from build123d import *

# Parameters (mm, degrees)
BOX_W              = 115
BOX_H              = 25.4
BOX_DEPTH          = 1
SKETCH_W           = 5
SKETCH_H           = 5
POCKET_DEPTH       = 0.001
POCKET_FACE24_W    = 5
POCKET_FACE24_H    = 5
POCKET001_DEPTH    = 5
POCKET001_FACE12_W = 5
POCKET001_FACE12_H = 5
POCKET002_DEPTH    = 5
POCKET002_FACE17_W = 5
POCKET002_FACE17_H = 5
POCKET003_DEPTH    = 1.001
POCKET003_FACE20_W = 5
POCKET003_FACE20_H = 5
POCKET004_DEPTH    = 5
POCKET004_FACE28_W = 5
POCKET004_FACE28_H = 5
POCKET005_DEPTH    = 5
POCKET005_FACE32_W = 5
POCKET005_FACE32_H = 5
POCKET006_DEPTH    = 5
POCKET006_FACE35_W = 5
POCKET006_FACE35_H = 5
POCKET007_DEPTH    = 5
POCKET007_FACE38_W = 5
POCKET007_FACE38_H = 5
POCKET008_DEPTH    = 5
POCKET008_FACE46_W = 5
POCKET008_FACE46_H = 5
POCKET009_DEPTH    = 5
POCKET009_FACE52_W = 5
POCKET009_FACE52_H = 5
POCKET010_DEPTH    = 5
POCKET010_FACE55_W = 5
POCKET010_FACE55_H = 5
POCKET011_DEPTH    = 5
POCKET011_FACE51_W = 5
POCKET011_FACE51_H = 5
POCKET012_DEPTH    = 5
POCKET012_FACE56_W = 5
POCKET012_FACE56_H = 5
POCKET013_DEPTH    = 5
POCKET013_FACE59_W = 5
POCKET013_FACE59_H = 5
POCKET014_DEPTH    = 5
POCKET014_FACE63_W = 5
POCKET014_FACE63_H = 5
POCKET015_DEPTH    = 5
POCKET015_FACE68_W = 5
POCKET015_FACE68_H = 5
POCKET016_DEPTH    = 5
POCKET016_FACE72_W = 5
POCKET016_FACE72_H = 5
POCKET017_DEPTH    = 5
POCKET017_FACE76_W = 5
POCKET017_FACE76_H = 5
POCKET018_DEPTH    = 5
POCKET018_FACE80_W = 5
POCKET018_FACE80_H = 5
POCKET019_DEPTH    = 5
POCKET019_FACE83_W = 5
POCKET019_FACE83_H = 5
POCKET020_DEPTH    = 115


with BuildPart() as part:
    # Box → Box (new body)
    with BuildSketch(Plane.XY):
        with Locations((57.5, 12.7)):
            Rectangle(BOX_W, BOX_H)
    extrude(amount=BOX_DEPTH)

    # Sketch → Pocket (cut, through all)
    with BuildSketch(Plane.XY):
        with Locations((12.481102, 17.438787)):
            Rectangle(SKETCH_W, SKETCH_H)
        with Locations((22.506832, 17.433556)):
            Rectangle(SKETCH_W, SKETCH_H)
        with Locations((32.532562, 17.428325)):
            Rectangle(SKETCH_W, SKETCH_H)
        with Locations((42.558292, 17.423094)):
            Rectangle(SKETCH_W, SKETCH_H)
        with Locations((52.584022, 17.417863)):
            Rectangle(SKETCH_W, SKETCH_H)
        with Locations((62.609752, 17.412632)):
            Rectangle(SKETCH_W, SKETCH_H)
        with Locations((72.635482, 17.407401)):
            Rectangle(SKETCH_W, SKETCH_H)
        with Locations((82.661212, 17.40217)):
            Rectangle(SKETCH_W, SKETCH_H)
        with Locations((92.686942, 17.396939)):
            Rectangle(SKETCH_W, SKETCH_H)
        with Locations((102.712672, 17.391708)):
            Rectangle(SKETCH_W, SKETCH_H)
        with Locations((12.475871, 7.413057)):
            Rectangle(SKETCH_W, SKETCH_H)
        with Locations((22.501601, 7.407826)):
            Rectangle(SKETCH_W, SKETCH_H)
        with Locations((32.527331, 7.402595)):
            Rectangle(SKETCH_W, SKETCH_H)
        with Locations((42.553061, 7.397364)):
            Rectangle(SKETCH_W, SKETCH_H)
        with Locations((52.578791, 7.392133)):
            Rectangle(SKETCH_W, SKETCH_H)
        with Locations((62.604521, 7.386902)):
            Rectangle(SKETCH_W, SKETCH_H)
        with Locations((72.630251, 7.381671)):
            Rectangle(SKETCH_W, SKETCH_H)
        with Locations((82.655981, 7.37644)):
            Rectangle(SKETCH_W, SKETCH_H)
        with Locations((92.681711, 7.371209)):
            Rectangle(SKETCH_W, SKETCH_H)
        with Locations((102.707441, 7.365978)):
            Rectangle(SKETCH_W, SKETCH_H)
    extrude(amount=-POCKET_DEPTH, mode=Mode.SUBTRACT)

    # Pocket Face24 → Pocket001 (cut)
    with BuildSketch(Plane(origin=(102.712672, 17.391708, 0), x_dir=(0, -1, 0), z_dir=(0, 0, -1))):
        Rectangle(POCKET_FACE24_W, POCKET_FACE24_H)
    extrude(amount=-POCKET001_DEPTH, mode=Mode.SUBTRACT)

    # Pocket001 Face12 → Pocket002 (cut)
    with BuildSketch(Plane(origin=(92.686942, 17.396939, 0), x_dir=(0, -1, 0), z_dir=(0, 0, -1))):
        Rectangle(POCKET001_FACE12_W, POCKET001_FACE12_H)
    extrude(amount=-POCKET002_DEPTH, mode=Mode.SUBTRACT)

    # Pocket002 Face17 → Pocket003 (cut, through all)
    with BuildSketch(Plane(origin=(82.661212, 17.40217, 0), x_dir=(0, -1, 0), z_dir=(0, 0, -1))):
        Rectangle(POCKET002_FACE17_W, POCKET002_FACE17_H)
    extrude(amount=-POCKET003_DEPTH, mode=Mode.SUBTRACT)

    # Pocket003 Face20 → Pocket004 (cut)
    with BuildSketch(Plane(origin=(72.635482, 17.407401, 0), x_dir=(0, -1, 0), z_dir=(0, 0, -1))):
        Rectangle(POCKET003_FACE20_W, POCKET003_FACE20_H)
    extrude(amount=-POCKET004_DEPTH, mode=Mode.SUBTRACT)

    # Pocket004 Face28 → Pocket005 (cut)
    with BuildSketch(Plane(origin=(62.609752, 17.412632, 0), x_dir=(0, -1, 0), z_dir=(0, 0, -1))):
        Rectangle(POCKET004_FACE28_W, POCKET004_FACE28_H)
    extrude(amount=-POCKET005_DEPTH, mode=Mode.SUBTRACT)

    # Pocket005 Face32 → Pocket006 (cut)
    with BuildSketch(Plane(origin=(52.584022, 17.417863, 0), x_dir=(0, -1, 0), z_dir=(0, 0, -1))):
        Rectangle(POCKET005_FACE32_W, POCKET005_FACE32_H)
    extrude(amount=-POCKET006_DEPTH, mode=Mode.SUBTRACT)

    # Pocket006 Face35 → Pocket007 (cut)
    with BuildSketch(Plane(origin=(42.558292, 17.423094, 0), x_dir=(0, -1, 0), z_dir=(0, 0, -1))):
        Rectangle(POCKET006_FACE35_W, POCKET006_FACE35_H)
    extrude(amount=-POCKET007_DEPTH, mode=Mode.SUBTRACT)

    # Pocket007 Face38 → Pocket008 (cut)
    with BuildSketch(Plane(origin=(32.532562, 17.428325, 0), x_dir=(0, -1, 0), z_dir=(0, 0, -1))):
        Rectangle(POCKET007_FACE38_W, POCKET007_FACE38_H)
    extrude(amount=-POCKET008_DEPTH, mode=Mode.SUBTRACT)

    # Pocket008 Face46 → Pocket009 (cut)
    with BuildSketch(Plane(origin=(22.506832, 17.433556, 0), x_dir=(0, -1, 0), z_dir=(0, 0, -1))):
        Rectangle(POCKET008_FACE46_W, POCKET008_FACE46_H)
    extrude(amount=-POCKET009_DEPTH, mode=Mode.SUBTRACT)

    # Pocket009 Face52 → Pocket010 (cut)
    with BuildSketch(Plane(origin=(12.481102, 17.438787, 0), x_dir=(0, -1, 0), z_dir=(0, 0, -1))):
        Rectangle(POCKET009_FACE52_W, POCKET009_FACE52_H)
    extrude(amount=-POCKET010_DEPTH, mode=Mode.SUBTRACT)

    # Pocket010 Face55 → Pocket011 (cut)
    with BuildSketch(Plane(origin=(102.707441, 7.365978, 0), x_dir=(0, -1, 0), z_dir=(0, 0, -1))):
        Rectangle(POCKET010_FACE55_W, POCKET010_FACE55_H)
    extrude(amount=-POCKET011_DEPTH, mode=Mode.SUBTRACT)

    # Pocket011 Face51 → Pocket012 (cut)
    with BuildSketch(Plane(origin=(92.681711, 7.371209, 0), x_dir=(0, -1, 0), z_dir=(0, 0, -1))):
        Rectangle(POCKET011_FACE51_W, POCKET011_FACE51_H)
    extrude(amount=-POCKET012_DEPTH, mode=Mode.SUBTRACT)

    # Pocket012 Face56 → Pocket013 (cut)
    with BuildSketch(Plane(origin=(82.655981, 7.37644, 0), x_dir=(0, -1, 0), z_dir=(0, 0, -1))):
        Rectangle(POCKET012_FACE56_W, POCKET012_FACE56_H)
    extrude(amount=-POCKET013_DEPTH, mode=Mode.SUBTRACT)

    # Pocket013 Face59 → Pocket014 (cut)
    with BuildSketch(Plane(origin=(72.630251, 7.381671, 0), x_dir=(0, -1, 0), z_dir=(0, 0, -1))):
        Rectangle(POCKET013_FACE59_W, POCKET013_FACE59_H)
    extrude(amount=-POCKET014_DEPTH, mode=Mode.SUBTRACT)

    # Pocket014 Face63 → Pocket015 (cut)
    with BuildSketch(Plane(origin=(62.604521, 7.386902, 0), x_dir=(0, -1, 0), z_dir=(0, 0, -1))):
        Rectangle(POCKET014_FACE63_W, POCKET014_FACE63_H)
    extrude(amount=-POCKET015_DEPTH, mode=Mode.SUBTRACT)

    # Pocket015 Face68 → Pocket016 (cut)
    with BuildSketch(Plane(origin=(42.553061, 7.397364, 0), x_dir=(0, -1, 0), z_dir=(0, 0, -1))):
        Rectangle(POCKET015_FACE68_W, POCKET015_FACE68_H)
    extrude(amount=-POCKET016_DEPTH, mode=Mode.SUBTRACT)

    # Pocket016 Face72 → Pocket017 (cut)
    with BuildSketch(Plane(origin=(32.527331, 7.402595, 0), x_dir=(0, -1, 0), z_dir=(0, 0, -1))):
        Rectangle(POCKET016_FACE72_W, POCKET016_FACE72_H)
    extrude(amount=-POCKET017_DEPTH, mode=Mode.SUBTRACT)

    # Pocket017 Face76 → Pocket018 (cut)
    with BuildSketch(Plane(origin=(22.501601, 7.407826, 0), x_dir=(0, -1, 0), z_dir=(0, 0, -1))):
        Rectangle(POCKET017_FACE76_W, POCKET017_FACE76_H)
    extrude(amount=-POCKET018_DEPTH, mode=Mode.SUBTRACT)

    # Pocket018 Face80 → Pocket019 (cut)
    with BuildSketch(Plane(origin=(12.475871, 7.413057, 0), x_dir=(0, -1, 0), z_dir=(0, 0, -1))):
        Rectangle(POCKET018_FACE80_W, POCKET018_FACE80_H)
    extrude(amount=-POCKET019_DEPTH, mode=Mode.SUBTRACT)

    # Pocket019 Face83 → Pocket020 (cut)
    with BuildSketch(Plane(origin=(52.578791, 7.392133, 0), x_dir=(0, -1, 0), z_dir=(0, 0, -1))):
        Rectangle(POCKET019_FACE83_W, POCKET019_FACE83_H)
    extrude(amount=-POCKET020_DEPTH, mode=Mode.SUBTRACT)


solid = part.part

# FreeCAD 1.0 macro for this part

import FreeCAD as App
import Part
import Sketcher

V = App.Vector


def add_polygon(sketch, points):
    """Adds a closed chain of lines whose ends are joined by coincident constraints."""
    first, n = sketch.GeometryCount, len(points)
    for a, b in zip(points, points[1:] + points[:1]):
        sketch.addGeometry(Part.LineSegment(App.Vector(*a, 0), App.Vector(*b, 0)), False)
    for i in range(n):
        sketch.addConstraint(Sketcher.Constraint("Coincident", first + i, 2, first + (i + 1) % n, 1))

doc = App.newDocument("Part")
body = doc.addObject("PartDesign::Body", "Body")

# Sketch on XY plane
sketch1 = body.newObject("Sketcher::SketchObject", "Sketch")
sketch1.AttachmentSupport = (doc.getObject("XY_Plane"), [""])
sketch1.MapMode = "FlatFace"
add_polygon(sketch1, [(0, 25), (0, 0), (115, 0), (115, 25)])  # lines 0-3
sketch1.addConstraint(Sketcher.Constraint("Vertical", 0))
sketch1.addConstraint(Sketcher.Constraint("Horizontal", 1))
sketch1.addConstraint(Sketcher.Constraint("Vertical", 2))
sketch1.addConstraint(Sketcher.Constraint("Horizontal", 3))
sketch1.addConstraint(Sketcher.Constraint("Coincident", 0, 2, -1, 1))
sketch1.addConstraint(Sketcher.Constraint("DistanceX", 1, 1, 1, 2, 115.0))
sketch1.addConstraint(Sketcher.Constraint("DistanceY", 0, 2, 0, 1, 25.4))
pad1 = body.newObject("PartDesign::Pad", "Pad")
pad1.Profile = sketch1
pad1.Length = 1

# Sketch on XY plane
sketch2 = body.newObject("Sketcher::SketchObject", "Sketch001")
sketch2.AttachmentSupport = (doc.getObject("XY_Plane"), [""])
sketch2.MapMode = "FlatFace"
add_polygon(sketch2, [(10, 19.9), (10, 14.9), (15, 14.9), (15, 19.9)])  # lines 0-3
add_polygon(sketch2, [(20, 19.9), (20, 14.9), (25, 14.9), (25, 19.9)])  # lines 4-7
add_polygon(sketch2, [(30, 19.9), (30, 14.9), (35, 14.9), (35, 19.9)])  # lines 8-11
add_polygon(sketch2, [(40.1, 19.9), (40.1, 14.9), (45.1, 14.9), (45.1, 19.9)])  # lines 12-15
add_polygon(sketch2, [(50.1, 19.9), (50.1, 14.9), (55.1, 14.9), (55.1, 19.9)])  # lines 16-19
add_polygon(sketch2, [(60.1, 19.9), (60.1, 14.9), (65.1, 14.9), (65.1, 19.9)])  # lines 20-23
add_polygon(sketch2, [(70.1, 19.9), (70.1, 14.9), (75.1, 14.9), (75.1, 19.9)])  # lines 24-27
add_polygon(sketch2, [(80.2, 19.9), (80.2, 14.9), (85.2, 14.9), (85.2, 19.9)])  # lines 28-31
add_polygon(sketch2, [(90.2, 19.9), (90.2, 14.9), (95.2, 14.9), (95.2, 19.9)])  # lines 32-35
add_polygon(sketch2, [(100.2, 19.9), (100.2, 14.9), (105.2, 14.9), (105.2, 19.9)])  # lines 36-39
add_polygon(sketch2, [(10, 9.9), (10, 4.9), (15, 4.9), (15, 9.9)])  # lines 40-43
add_polygon(sketch2, [(20, 9.9), (20, 4.9), (25, 4.9), (25, 9.9)])  # lines 44-47
add_polygon(sketch2, [(30, 9.9), (30, 4.9), (35, 4.9), (35, 9.9)])  # lines 48-51
add_polygon(sketch2, [(40.1, 9.9), (40.1, 4.9), (45.1, 4.9), (45.1, 9.9)])  # lines 52-55
add_polygon(sketch2, [(50.1, 9.9), (50.1, 4.9), (55.1, 4.9), (55.1, 9.9)])  # lines 56-59
add_polygon(sketch2, [(60.1, 9.9), (60.1, 4.9), (65.1, 4.9), (65.1, 9.9)])  # lines 60-63
add_polygon(sketch2, [(70.1, 9.9), (70.1, 4.9), (75.1, 4.9), (75.1, 9.9)])  # lines 64-67
add_polygon(sketch2, [(80.2, 9.9), (80.2, 4.9), (85.2, 4.9), (85.2, 9.9)])  # lines 68-71
add_polygon(sketch2, [(90.2, 9.9), (90.2, 4.9), (95.2, 4.9), (95.2, 9.9)])  # lines 72-75
add_polygon(sketch2, [(100.2, 9.9), (100.2, 4.9), (105.2, 4.9), (105.2, 9.9)])  # lines 76-79
sketch2.addConstraint(Sketcher.Constraint("Vertical", 0))
sketch2.addConstraint(Sketcher.Constraint("Horizontal", 1))
sketch2.addConstraint(Sketcher.Constraint("Vertical", 2))
sketch2.addConstraint(Sketcher.Constraint("Horizontal", 3))
sketch2.addConstraint(Sketcher.Constraint("Vertical", 4))
sketch2.addConstraint(Sketcher.Constraint("Horizontal", 5))
sketch2.addConstraint(Sketcher.Constraint("Vertical", 6))
sketch2.addConstraint(Sketcher.Constraint("Horizontal", 7))
sketch2.addConstraint(Sketcher.Constraint("Vertical", 8))
sketch2.addConstraint(Sketcher.Constraint("Horizontal", 9))
sketch2.addConstraint(Sketcher.Constraint("Vertical", 10))
sketch2.addConstraint(Sketcher.Constraint("Horizontal", 11))
sketch2.addConstraint(Sketcher.Constraint("Vertical", 12))
sketch2.addConstraint(Sketcher.Constraint("Horizontal", 13))
sketch2.addConstraint(Sketcher.Constraint("Vertical", 14))
sketch2.addConstraint(Sketcher.Constraint("Horizontal", 15))
sketch2.addConstraint(Sketcher.Constraint("Vertical", 16))
sketch2.addConstraint(Sketcher.Constraint("Horizontal", 17))
sketch2.addConstraint(Sketcher.Constraint("Vertical", 18))
sketch2.addConstraint(Sketcher.Constraint("Horizontal", 19))
sketch2.addConstraint(Sketcher.Constraint("Vertical", 20))
sketch2.addConstraint(Sketcher.Constraint("Horizontal", 21))
sketch2.addConstraint(Sketcher.Constraint("Vertical", 22))
sketch2.addConstraint(Sketcher.Constraint("Horizontal", 23))
sketch2.addConstraint(Sketcher.Constraint("Vertical", 24))
sketch2.addConstraint(Sketcher.Constraint("Horizontal", 25))
sketch2.addConstraint(Sketcher.Constraint("Vertical", 26))
sketch2.addConstraint(Sketcher.Constraint("Horizontal", 27))
sketch2.addConstraint(Sketcher.Constraint("Vertical", 28))
sketch2.addConstraint(Sketcher.Constraint("Horizontal", 29))
sketch2.addConstraint(Sketcher.Constraint("Vertical", 30))
sketch2.addConstraint(Sketcher.Constraint("Horizontal", 31))
sketch2.addConstraint(Sketcher.Constraint("Vertical", 32))
sketch2.addConstraint(Sketcher.Constraint("Horizontal", 33))
sketch2.addConstraint(Sketcher.Constraint("Vertical", 34))
sketch2.addConstraint(Sketcher.Constraint("Horizontal", 35))
sketch2.addConstraint(Sketcher.Constraint("Vertical", 36))
sketch2.addConstraint(Sketcher.Constraint("Horizontal", 37))
sketch2.addConstraint(Sketcher.Constraint("Vertical", 38))
sketch2.addConstraint(Sketcher.Constraint("Horizontal", 39))
sketch2.addConstraint(Sketcher.Constraint("Vertical", 40))
sketch2.addConstraint(Sketcher.Constraint("Horizontal", 41))
sketch2.addConstraint(Sketcher.Constraint("Vertical", 42))
sketch2.addConstraint(Sketcher.Constraint("Horizontal", 43))
sketch2.addConstraint(Sketcher.Constraint("Vertical", 44))
sketch2.addConstraint(Sketcher.Constraint("Horizontal", 45))
sketch2.addConstraint(Sketcher.Constraint("Vertical", 46))
sketch2.addConstraint(Sketcher.Constraint("Horizontal", 47))
sketch2.addConstraint(Sketcher.Constraint("Vertical", 48))
sketch2.addConstraint(Sketcher.Constraint("Horizontal", 49))
sketch2.addConstraint(Sketcher.Constraint("Vertical", 50))
sketch2.addConstraint(Sketcher.Constraint("Horizontal", 51))
sketch2.addConstraint(Sketcher.Constraint("Vertical", 52))
sketch2.addConstraint(Sketcher.Constraint("Horizontal", 53))
sketch2.addConstraint(Sketcher.Constraint("Vertical", 54))
sketch2.addConstraint(Sketcher.Constraint("Horizontal", 55))
sketch2.addConstraint(Sketcher.Constraint("Vertical", 56))
sketch2.addConstraint(Sketcher.Constraint("Horizontal", 57))
sketch2.addConstraint(Sketcher.Constraint("Vertical", 58))
sketch2.addConstraint(Sketcher.Constraint("Horizontal", 59))
sketch2.addConstraint(Sketcher.Constraint("Vertical", 60))
sketch2.addConstraint(Sketcher.Constraint("Horizontal", 61))
sketch2.addConstraint(Sketcher.Constraint("Vertical", 62))
sketch2.addConstraint(Sketcher.Constraint("Horizontal", 63))
sketch2.addConstraint(Sketcher.Constraint("Vertical", 64))
sketch2.addConstraint(Sketcher.Constraint("Horizontal", 65))
sketch2.addConstraint(Sketcher.Constraint("Vertical", 66))
sketch2.addConstraint(Sketcher.Constraint("Horizontal", 67))
sketch2.addConstraint(Sketcher.Constraint("Vertical", 68))
sketch2.addConstraint(Sketcher.Constraint("Horizontal", 69))
sketch2.addConstraint(Sketcher.Constraint("Vertical", 70))
sketch2.addConstraint(Sketcher.Constraint("Horizontal", 71))
sketch2.addConstraint(Sketcher.Constraint("Vertical", 72))
sketch2.addConstraint(Sketcher.Constraint("Horizontal", 73))
sketch2.addConstraint(Sketcher.Constraint("Vertical", 74))
sketch2.addConstraint(Sketcher.Constraint("Horizontal", 75))
sketch2.addConstraint(Sketcher.Constraint("Vertical", 76))
sketch2.addConstraint(Sketcher.Constraint("Horizontal", 77))
sketch2.addConstraint(Sketcher.Constraint("Vertical", 78))
sketch2.addConstraint(Sketcher.Constraint("Horizontal", 79))
sketch2.addConstraint(Sketcher.Constraint("Equal", 3, 5))
sketch2.addConstraint(Sketcher.Constraint("Equal", 7, 9))
sketch2.addConstraint(Sketcher.Constraint("Equal", 11, 13))
sketch2.addConstraint(Sketcher.Constraint("Equal", 15, 17))
sketch2.addConstraint(Sketcher.Constraint("Equal", 19, 21))
sketch2.addConstraint(Sketcher.Constraint("Equal", 23, 25))
sketch2.addConstraint(Sketcher.Constraint("Equal", 27, 29))
sketch2.addConstraint(Sketcher.Constraint("Equal", 31, 33))
sketch2.addConstraint(Sketcher.Constraint("Equal", 35, 37))
sketch2.addConstraint(Sketcher.Constraint("Equal", 39, 41))
sketch2.addConstraint(Sketcher.Constraint("Equal", 43, 45))
sketch2.addConstraint(Sketcher.Constraint("Equal", 47, 49))
sketch2.addConstraint(Sketcher.Constraint("Equal", 51, 53))
sketch2.addConstraint(Sketcher.Constraint("Equal", 55, 57))
sketch2.addConstraint(Sketcher.Constraint("Equal", 59, 61))
sketch2.addConstraint(Sketcher.Constraint("Equal", 63, 65))
sketch2.addConstraint(Sketcher.Constraint("Equal", 67, 69))
sketch2.addConstraint(Sketcher.Constraint("Equal", 71, 73))
sketch2.addConstraint(Sketcher.Constraint("Equal", 75, 77))
sketch2.addConstraint(Sketcher.Constraint("Equal", 79, 0))
sketch2.addConstraint(Sketcher.Constraint("Equal", 2, 4))
sketch2.addConstraint(Sketcher.Constraint("Equal", 6, 8))
sketch2.addConstraint(Sketcher.Constraint("Equal", 10, 12))
sketch2.addConstraint(Sketcher.Constraint("Equal", 14, 16))
sketch2.addConstraint(Sketcher.Constraint("Equal", 18, 20))
sketch2.addConstraint(Sketcher.Constraint("Equal", 22, 24))
sketch2.addConstraint(Sketcher.Constraint("Equal", 26, 28))
sketch2.addConstraint(Sketcher.Constraint("Equal", 30, 32))
sketch2.addConstraint(Sketcher.Constraint("Equal", 34, 36))
sketch2.addConstraint(Sketcher.Constraint("Equal", 38, 40))
sketch2.addConstraint(Sketcher.Constraint("Equal", 42, 44))
sketch2.addConstraint(Sketcher.Constraint("Equal", 46, 48))
sketch2.addConstraint(Sketcher.Constraint("Equal", 50, 52))
sketch2.addConstraint(Sketcher.Constraint("Equal", 54, 56))
sketch2.addConstraint(Sketcher.Constraint("Equal", 58, 60))
sketch2.addConstraint(Sketcher.Constraint("Equal", 62, 64))
sketch2.addConstraint(Sketcher.Constraint("Equal", 66, 68))
sketch2.addConstraint(Sketcher.Constraint("Equal", 70, 72))
sketch2.addConstraint(Sketcher.Constraint("Equal", 74, 76))
sketch2.addConstraint(Sketcher.Constraint("DistanceX", 1, 1, 1, 2, 5.0))
sketch2.addConstraint(Sketcher.Constraint("DistanceY", -1, 1, 24, 2, 14.907401))
sketch2.addConstraint(Sketcher.Constraint("DistanceX", -1, 1, 44, 2, 20.001601))
sketch2.addConstraint(Sketcher.Constraint("DistanceY", -1, 1, 62, 2, 9.886902))
sketch2.addConstraint(Sketcher.Constraint("DistanceX", -1, 1, 4, 2, 20.006832))
sketch2.addConstraint(Sketcher.Constraint("DistanceX", -1, 1, 8, 2, 30.032562))
sketch2.addConstraint(Sketcher.Constraint("DistanceX", -1, 1, 16, 2, 50.084022))
sketch2.addConstraint(Sketcher.Constraint("DistanceX", -1, 1, 21, 2, 65.109752))
sketch2.addConstraint(Sketcher.Constraint("DistanceY", -1, 1, 22, 2, 19.912632))
sketch2.addConstraint(Sketcher.Constraint("DistanceX", -1, 1, 24, 2, 70.135482))
sketch2.addConstraint(Sketcher.Constraint("DistanceY", -1, 1, 28, 2, 14.90217))
sketch2.addConstraint(Sketcher.Constraint("DistanceX", -1, 1, 32, 2, 90.186942))
sketch2.addConstraint(Sketcher.Constraint("DistanceY", -1, 1, 32, 2, 14.896939))
sketch2.addConstraint(Sketcher.Constraint("DistanceX", -1, 1, 36, 2, 100.212672))
sketch2.addConstraint(Sketcher.Constraint("DistanceY", -1, 1, 38, 2, 19.891708))
sketch2.addConstraint(Sketcher.Constraint("DistanceX", -1, 1, 40, 2, 9.975871))
sketch2.addConstraint(Sketcher.Constraint("DistanceX", -1, 1, 48, 2, 30.027331))
sketch2.addConstraint(Sketcher.Constraint("DistanceX", -1, 1, 52, 2, 40.053061))
sketch2.addConstraint(Sketcher.Constraint("DistanceX", -1, 1, 56, 2, 50.078791))
sketch2.addConstraint(Sketcher.Constraint("DistanceX", -1, 1, 60, 2, 60.104521))
sketch2.addConstraint(Sketcher.Constraint("DistanceX", -1, 1, 64, 2, 70.130251))
sketch2.addConstraint(Sketcher.Constraint("DistanceY", -1, 1, 64, 2, 4.881671))
sketch2.addConstraint(Sketcher.Constraint("DistanceX", -1, 1, 68, 2, 80.155981))
sketch2.addConstraint(Sketcher.Constraint("DistanceY", -1, 1, 68, 2, 4.87644))
sketch2.addConstraint(Sketcher.Constraint("DistanceX", -1, 1, 72, 2, 90.181711))
sketch2.addConstraint(Sketcher.Constraint("DistanceY", -1, 1, 72, 2, 4.871209))
sketch2.addConstraint(Sketcher.Constraint("DistanceX", -1, 1, 76, 2, 100.207441))
sketch2.addConstraint(Sketcher.Constraint("DistanceX", -1, 1, 0, 2, 9.981102))
sketch2.addConstraint(Sketcher.Constraint("DistanceY", -1, 1, 0, 2, 14.938787))
sketch2.addConstraint(Sketcher.Constraint("DistanceY", -1, 1, 4, 2, 14.933556))
sketch2.addConstraint(Sketcher.Constraint("DistanceY", -1, 1, 8, 2, 14.928325))
sketch2.addConstraint(Sketcher.Constraint("DistanceX", -1, 1, 12, 2, 40.058292))
sketch2.addConstraint(Sketcher.Constraint("DistanceY", -1, 1, 12, 2, 14.923094))
sketch2.addConstraint(Sketcher.Constraint("DistanceY", -1, 1, 16, 2, 14.917863))
sketch2.addConstraint(Sketcher.Constraint("DistanceX", -1, 1, 28, 2, 80.161212))
sketch2.addConstraint(Sketcher.Constraint("DistanceY", -1, 1, 40, 2, 4.913057))
sketch2.addConstraint(Sketcher.Constraint("DistanceY", -1, 1, 44, 2, 4.907826))
sketch2.addConstraint(Sketcher.Constraint("DistanceY", -1, 1, 48, 2, 4.902595))
sketch2.addConstraint(Sketcher.Constraint("DistanceY", -1, 1, 52, 2, 4.897364))
sketch2.addConstraint(Sketcher.Constraint("DistanceY", -1, 1, 56, 2, 4.892133))
sketch2.addConstraint(Sketcher.Constraint("DistanceY", -1, 1, 76, 2, 4.865978))
pocket1 = body.newObject("PartDesign::Pocket", "Pocket")
pocket1.Profile = sketch2
pocket1.Type = "ThroughAll"

# Sketch on XY plane
sketch3 = body.newObject("Sketcher::SketchObject", "Sketch002")
sketch3.AttachmentSupport = (doc.getObject("XY_Plane"), [""])
sketch3.MapMode = "FlatFace"
add_polygon(sketch3, [(100, 20), (105, 20), (105, 15), (100, 15)])  # lines 0-3
sketch3.addConstraint(Sketcher.Constraint("Horizontal", 0))
sketch3.addConstraint(Sketcher.Constraint("Vertical", 1))
sketch3.addConstraint(Sketcher.Constraint("Horizontal", 2))
sketch3.addConstraint(Sketcher.Constraint("Vertical", 3))
sketch3.addConstraint(Sketcher.Constraint("Equal", 2, 1))
sketch3.addConstraint(Sketcher.Constraint("DistanceX", 0, 1, 0, 2, 5.0))
sketch3.addConstraint(Sketcher.Constraint("DistanceX", -1, 1, 0, 2, 105.212672))
sketch3.addConstraint(Sketcher.Constraint("DistanceY", -1, 1, 0, 2, 19.891708))
pocket2 = body.newObject("PartDesign::Pocket", "Pocket001")
pocket2.Profile = sketch3
pocket2.Length = 5
pocket2.Reversed = True

# Sketch on XY plane
sketch4 = body.newObject("Sketcher::SketchObject", "Sketch003")
sketch4.AttachmentSupport = (doc.getObject("XY_Plane"), [""])
sketch4.MapMode = "FlatFace"
add_polygon(sketch4, [(90, 20), (95, 20), (95, 15), (90, 15)])  # lines 0-3
sketch4.addConstraint(Sketcher.Constraint("Horizontal", 0))
sketch4.addConstraint(Sketcher.Constraint("Vertical", 1))
sketch4.addConstraint(Sketcher.Constraint("Horizontal", 2))
sketch4.addConstraint(Sketcher.Constraint("Vertical", 3))
sketch4.addConstraint(Sketcher.Constraint("Equal", 2, 1))
sketch4.addConstraint(Sketcher.Constraint("DistanceX", 0, 1, 0, 2, 5.0))
sketch4.addConstraint(Sketcher.Constraint("DistanceX", -1, 1, 0, 2, 95.186942))
sketch4.addConstraint(Sketcher.Constraint("DistanceY", -1, 1, 0, 2, 19.896939))
pocket3 = body.newObject("PartDesign::Pocket", "Pocket002")
pocket3.Profile = sketch4
pocket3.Length = 5
pocket3.Reversed = True

# Sketch on XY plane
sketch5 = body.newObject("Sketcher::SketchObject", "Sketch004")
sketch5.AttachmentSupport = (doc.getObject("XY_Plane"), [""])
sketch5.MapMode = "FlatFace"
add_polygon(sketch5, [(80, 20), (85, 20), (85, 15), (80, 15)])  # lines 0-3
sketch5.addConstraint(Sketcher.Constraint("Horizontal", 0))
sketch5.addConstraint(Sketcher.Constraint("Vertical", 1))
sketch5.addConstraint(Sketcher.Constraint("Horizontal", 2))
sketch5.addConstraint(Sketcher.Constraint("Vertical", 3))
sketch5.addConstraint(Sketcher.Constraint("Equal", 2, 1))
sketch5.addConstraint(Sketcher.Constraint("DistanceX", 0, 1, 0, 2, 5.0))
sketch5.addConstraint(Sketcher.Constraint("DistanceY", -1, 1, 0, 2, 19.90217))
sketch5.addConstraint(Sketcher.Constraint("DistanceX", -1, 1, 0, 2, 85.161212))
pocket4 = body.newObject("PartDesign::Pocket", "Pocket003")
pocket4.Profile = sketch5
pocket4.Type = "ThroughAll"
pocket4.Reversed = True

# Sketch on XY plane
sketch6 = body.newObject("Sketcher::SketchObject", "Sketch005")
sketch6.AttachmentSupport = (doc.getObject("XY_Plane"), [""])
sketch6.MapMode = "FlatFace"
add_polygon(sketch6, [(70, 20), (75, 20), (75, 15), (70, 15)])  # lines 0-3
sketch6.addConstraint(Sketcher.Constraint("Horizontal", 0))
sketch6.addConstraint(Sketcher.Constraint("Vertical", 1))
sketch6.addConstraint(Sketcher.Constraint("Horizontal", 2))
sketch6.addConstraint(Sketcher.Constraint("Vertical", 3))
sketch6.addConstraint(Sketcher.Constraint("Equal", 2, 1))
sketch6.addConstraint(Sketcher.Constraint("DistanceX", 0, 1, 0, 2, 5.0))
sketch6.addConstraint(Sketcher.Constraint("DistanceY", -1, 1, 0, 2, 19.907401))
sketch6.addConstraint(Sketcher.Constraint("DistanceX", -1, 1, 0, 2, 75.135482))
pocket5 = body.newObject("PartDesign::Pocket", "Pocket004")
pocket5.Profile = sketch6
pocket5.Length = 5
pocket5.Reversed = True

# Sketch on XY plane
sketch7 = body.newObject("Sketcher::SketchObject", "Sketch006")
sketch7.AttachmentSupport = (doc.getObject("XY_Plane"), [""])
sketch7.MapMode = "FlatFace"
add_polygon(sketch7, [(60.1, 19.9), (65.1, 19.9), (65.1, 14.9), (60.1, 14.9)])  # lines 0-3
sketch7.addConstraint(Sketcher.Constraint("Horizontal", 0))
sketch7.addConstraint(Sketcher.Constraint("Vertical", 1))
sketch7.addConstraint(Sketcher.Constraint("Horizontal", 2))
sketch7.addConstraint(Sketcher.Constraint("Vertical", 3))
sketch7.addConstraint(Sketcher.Constraint("Equal", 2, 1))
sketch7.addConstraint(Sketcher.Constraint("DistanceX", 0, 1, 0, 2, 5.0))
sketch7.addConstraint(Sketcher.Constraint("DistanceX", -1, 1, 0, 2, 65.109752))
sketch7.addConstraint(Sketcher.Constraint("DistanceY", -1, 1, 0, 2, 19.912632))
pocket6 = body.newObject("PartDesign::Pocket", "Pocket005")
pocket6.Profile = sketch7
pocket6.Length = 5
pocket6.Reversed = True

# Sketch on XY plane
sketch8 = body.newObject("Sketcher::SketchObject", "Sketch007")
sketch8.AttachmentSupport = (doc.getObject("XY_Plane"), [""])
sketch8.MapMode = "FlatFace"
add_polygon(sketch8, [(50, 20), (55, 20), (55, 15), (50, 15)])  # lines 0-3
sketch8.addConstraint(Sketcher.Constraint("Horizontal", 0))
sketch8.addConstraint(Sketcher.Constraint("Vertical", 1))
sketch8.addConstraint(Sketcher.Constraint("Horizontal", 2))
sketch8.addConstraint(Sketcher.Constraint("Vertical", 3))
sketch8.addConstraint(Sketcher.Constraint("Equal", 2, 1))
sketch8.addConstraint(Sketcher.Constraint("DistanceX", 0, 1, 0, 2, 5.0))
sketch8.addConstraint(Sketcher.Constraint("DistanceX", -1, 1, 0, 2, 55.084022))
sketch8.addConstraint(Sketcher.Constraint("DistanceY", -1, 1, 0, 2, 19.917863))
pocket7 = body.newObject("PartDesign::Pocket", "Pocket006")
pocket7.Profile = sketch8
pocket7.Length = 5
pocket7.Reversed = True

# Sketch on XY plane
sketch9 = body.newObject("Sketcher::SketchObject", "Sketch008")
sketch9.AttachmentSupport = (doc.getObject("XY_Plane"), [""])
sketch9.MapMode = "FlatFace"
add_polygon(sketch9, [(40.1, 19.9), (45.1, 19.9), (45.1, 14.9), (40.1, 14.9)])  # lines 0-3
sketch9.addConstraint(Sketcher.Constraint("Horizontal", 0))
sketch9.addConstraint(Sketcher.Constraint("Vertical", 1))
sketch9.addConstraint(Sketcher.Constraint("Horizontal", 2))
sketch9.addConstraint(Sketcher.Constraint("Vertical", 3))
sketch9.addConstraint(Sketcher.Constraint("Equal", 2, 1))
sketch9.addConstraint(Sketcher.Constraint("DistanceX", 0, 1, 0, 2, 5.0))
sketch9.addConstraint(Sketcher.Constraint("DistanceX", -1, 1, 0, 2, 45.058292))
sketch9.addConstraint(Sketcher.Constraint("DistanceY", -1, 1, 0, 2, 19.923094))
pocket8 = body.newObject("PartDesign::Pocket", "Pocket007")
pocket8.Profile = sketch9
pocket8.Length = 5
pocket8.Reversed = True

# Sketch on XY plane
sketch10 = body.newObject("Sketcher::SketchObject", "Sketch009")
sketch10.AttachmentSupport = (doc.getObject("XY_Plane"), [""])
sketch10.MapMode = "FlatFace"
add_polygon(sketch10, [(30, 20), (35, 20), (35, 15), (30, 15)])  # lines 0-3
sketch10.addConstraint(Sketcher.Constraint("Horizontal", 0))
sketch10.addConstraint(Sketcher.Constraint("Vertical", 1))
sketch10.addConstraint(Sketcher.Constraint("Horizontal", 2))
sketch10.addConstraint(Sketcher.Constraint("Vertical", 3))
sketch10.addConstraint(Sketcher.Constraint("Equal", 2, 1))
sketch10.addConstraint(Sketcher.Constraint("DistanceX", 0, 1, 0, 2, 5.0))
sketch10.addConstraint(Sketcher.Constraint("DistanceX", -1, 1, 2, 2, 30.032562))
sketch10.addConstraint(Sketcher.Constraint("DistanceY", -1, 1, 0, 2, 19.928325))
pocket9 = body.newObject("PartDesign::Pocket", "Pocket008")
pocket9.Profile = sketch10
pocket9.Length = 5
pocket9.Reversed = True

# Sketch on XY plane
sketch11 = body.newObject("Sketcher::SketchObject", "Sketch010")
sketch11.AttachmentSupport = (doc.getObject("XY_Plane"), [""])
sketch11.MapMode = "FlatFace"
add_polygon(sketch11, [(20, 20), (25, 20), (25, 15), (20, 15)])  # lines 0-3
sketch11.addConstraint(Sketcher.Constraint("Horizontal", 0))
sketch11.addConstraint(Sketcher.Constraint("Vertical", 1))
sketch11.addConstraint(Sketcher.Constraint("Horizontal", 2))
sketch11.addConstraint(Sketcher.Constraint("Vertical", 3))
sketch11.addConstraint(Sketcher.Constraint("Equal", 2, 1))
sketch11.addConstraint(Sketcher.Constraint("DistanceX", 0, 1, 0, 2, 5.0))
sketch11.addConstraint(Sketcher.Constraint("DistanceX", -1, 1, 0, 2, 25.006832))
sketch11.addConstraint(Sketcher.Constraint("DistanceY", -1, 1, 0, 2, 19.933556))
pocket10 = body.newObject("PartDesign::Pocket", "Pocket009")
pocket10.Profile = sketch11
pocket10.Length = 5
pocket10.Reversed = True

# Sketch on XY plane
sketch12 = body.newObject("Sketcher::SketchObject", "Sketch011")
sketch12.AttachmentSupport = (doc.getObject("XY_Plane"), [""])
sketch12.MapMode = "FlatFace"
add_polygon(sketch12, [(10, 20), (15, 20), (15, 15), (10, 15)])  # lines 0-3
sketch12.addConstraint(Sketcher.Constraint("Horizontal", 0))
sketch12.addConstraint(Sketcher.Constraint("Vertical", 1))
sketch12.addConstraint(Sketcher.Constraint("Horizontal", 2))
sketch12.addConstraint(Sketcher.Constraint("Vertical", 3))
sketch12.addConstraint(Sketcher.Constraint("Equal", 2, 1))
sketch12.addConstraint(Sketcher.Constraint("DistanceX", 0, 1, 0, 2, 5.0))
sketch12.addConstraint(Sketcher.Constraint("DistanceX", -1, 1, 0, 2, 14.981102))
sketch12.addConstraint(Sketcher.Constraint("DistanceY", -1, 1, 0, 2, 19.938787))
pocket11 = body.newObject("PartDesign::Pocket", "Pocket010")
pocket11.Profile = sketch12
pocket11.Length = 5
pocket11.Reversed = True

# Sketch on XY plane
sketch13 = body.newObject("Sketcher::SketchObject", "Sketch012")
sketch13.AttachmentSupport = (doc.getObject("XY_Plane"), [""])
sketch13.MapMode = "FlatFace"
add_polygon(sketch13, [(100, 10), (105, 10), (105, 5), (100, 5)])  # lines 0-3
sketch13.addConstraint(Sketcher.Constraint("Horizontal", 0))
sketch13.addConstraint(Sketcher.Constraint("Vertical", 1))
sketch13.addConstraint(Sketcher.Constraint("Horizontal", 2))
sketch13.addConstraint(Sketcher.Constraint("Vertical", 3))
sketch13.addConstraint(Sketcher.Constraint("Equal", 2, 1))
sketch13.addConstraint(Sketcher.Constraint("DistanceX", 0, 1, 0, 2, 5.0))
sketch13.addConstraint(Sketcher.Constraint("DistanceX", -1, 1, 0, 2, 105.207441))
sketch13.addConstraint(Sketcher.Constraint("DistanceY", -1, 1, 0, 2, 9.865978))
pocket12 = body.newObject("PartDesign::Pocket", "Pocket011")
pocket12.Profile = sketch13
pocket12.Length = 5
pocket12.Reversed = True

# Sketch on XY plane
sketch14 = body.newObject("Sketcher::SketchObject", "Sketch013")
sketch14.AttachmentSupport = (doc.getObject("XY_Plane"), [""])
sketch14.MapMode = "FlatFace"
add_polygon(sketch14, [(90, 10), (95, 10), (95, 5), (90, 5)])  # lines 0-3
sketch14.addConstraint(Sketcher.Constraint("Horizontal", 0))
sketch14.addConstraint(Sketcher.Constraint("Vertical", 1))
sketch14.addConstraint(Sketcher.Constraint("Horizontal", 2))
sketch14.addConstraint(Sketcher.Constraint("Vertical", 3))
sketch14.addConstraint(Sketcher.Constraint("Equal", 2, 1))
sketch14.addConstraint(Sketcher.Constraint("DistanceX", 0, 1, 0, 2, 5.0))
sketch14.addConstraint(Sketcher.Constraint("DistanceX", -1, 1, 0, 2, 95.181711))
sketch14.addConstraint(Sketcher.Constraint("DistanceY", -1, 1, 0, 2, 9.871209))
pocket13 = body.newObject("PartDesign::Pocket", "Pocket012")
pocket13.Profile = sketch14
pocket13.Length = 5
pocket13.Reversed = True

# Sketch on XY plane
sketch15 = body.newObject("Sketcher::SketchObject", "Sketch014")
sketch15.AttachmentSupport = (doc.getObject("XY_Plane"), [""])
sketch15.MapMode = "FlatFace"
add_polygon(sketch15, [(80, 10), (85, 10), (85, 5), (80, 5)])  # lines 0-3
sketch15.addConstraint(Sketcher.Constraint("Horizontal", 0))
sketch15.addConstraint(Sketcher.Constraint("Vertical", 1))
sketch15.addConstraint(Sketcher.Constraint("Horizontal", 2))
sketch15.addConstraint(Sketcher.Constraint("Vertical", 3))
sketch15.addConstraint(Sketcher.Constraint("Equal", 2, 1))
sketch15.addConstraint(Sketcher.Constraint("DistanceX", 0, 1, 0, 2, 5.0))
sketch15.addConstraint(Sketcher.Constraint("DistanceX", -1, 1, 0, 2, 85.155981))
sketch15.addConstraint(Sketcher.Constraint("DistanceY", -1, 1, 0, 2, 9.87644))
pocket14 = body.newObject("PartDesign::Pocket", "Pocket013")
pocket14.Profile = sketch15
pocket14.Length = 5
pocket14.Reversed = True

# Sketch on XY plane
sketch16 = body.newObject("Sketcher::SketchObject", "Sketch015")
sketch16.AttachmentSupport = (doc.getObject("XY_Plane"), [""])
sketch16.MapMode = "FlatFace"
add_polygon(sketch16, [(70, 10), (75, 10), (75, 5), (70, 5)])  # lines 0-3
sketch16.addConstraint(Sketcher.Constraint("Horizontal", 0))
sketch16.addConstraint(Sketcher.Constraint("Vertical", 1))
sketch16.addConstraint(Sketcher.Constraint("Horizontal", 2))
sketch16.addConstraint(Sketcher.Constraint("Vertical", 3))
sketch16.addConstraint(Sketcher.Constraint("Equal", 2, 1))
sketch16.addConstraint(Sketcher.Constraint("DistanceX", 0, 1, 0, 2, 5.0))
sketch16.addConstraint(Sketcher.Constraint("DistanceX", -1, 1, 0, 2, 75.130251))
sketch16.addConstraint(Sketcher.Constraint("DistanceY", -1, 1, 0, 2, 9.881671))
pocket15 = body.newObject("PartDesign::Pocket", "Pocket014")
pocket15.Profile = sketch16
pocket15.Length = 5
pocket15.Reversed = True

# Sketch on XY plane
sketch17 = body.newObject("Sketcher::SketchObject", "Sketch016")
sketch17.AttachmentSupport = (doc.getObject("XY_Plane"), [""])
sketch17.MapMode = "FlatFace"
add_polygon(sketch17, [(60.1, 9.9), (65.1, 9.9), (65.1, 4.9), (60.1, 4.9)])  # lines 0-3
sketch17.addConstraint(Sketcher.Constraint("Horizontal", 0))
sketch17.addConstraint(Sketcher.Constraint("Vertical", 1))
sketch17.addConstraint(Sketcher.Constraint("Horizontal", 2))
sketch17.addConstraint(Sketcher.Constraint("Vertical", 3))
sketch17.addConstraint(Sketcher.Constraint("Equal", 2, 1))
sketch17.addConstraint(Sketcher.Constraint("DistanceX", 0, 1, 0, 2, 5.0))
sketch17.addConstraint(Sketcher.Constraint("DistanceY", -1, 1, 0, 2, 9.886902))
sketch17.addConstraint(Sketcher.Constraint("DistanceX", -1, 1, 0, 2, 65.104521))
pocket16 = body.newObject("PartDesign::Pocket", "Pocket015")
pocket16.Profile = sketch17
pocket16.Length = 5
pocket16.Reversed = True

# Sketch on XY plane
sketch18 = body.newObject("Sketcher::SketchObject", "Sketch017")
sketch18.AttachmentSupport = (doc.getObject("XY_Plane"), [""])
sketch18.MapMode = "FlatFace"
add_polygon(sketch18, [(40, 10), (45, 10), (45, 5), (40, 5)])  # lines 0-3
sketch18.addConstraint(Sketcher.Constraint("Horizontal", 0))
sketch18.addConstraint(Sketcher.Constraint("Vertical", 1))
sketch18.addConstraint(Sketcher.Constraint("Horizontal", 2))
sketch18.addConstraint(Sketcher.Constraint("Vertical", 3))
sketch18.addConstraint(Sketcher.Constraint("Equal", 2, 1))
sketch18.addConstraint(Sketcher.Constraint("DistanceX", 0, 1, 0, 2, 5.0))
sketch18.addConstraint(Sketcher.Constraint("DistanceX", -1, 1, 0, 2, 45.053061))
sketch18.addConstraint(Sketcher.Constraint("DistanceY", -1, 1, 0, 2, 9.897364))
pocket17 = body.newObject("PartDesign::Pocket", "Pocket016")
pocket17.Profile = sketch18
pocket17.Length = 5
pocket17.Reversed = True

# Sketch on XY plane
sketch19 = body.newObject("Sketcher::SketchObject", "Sketch018")
sketch19.AttachmentSupport = (doc.getObject("XY_Plane"), [""])
sketch19.MapMode = "FlatFace"
add_polygon(sketch19, [(30, 9.9), (35, 9.9), (35, 4.9), (30, 4.9)])  # lines 0-3
sketch19.addConstraint(Sketcher.Constraint("Horizontal", 0))
sketch19.addConstraint(Sketcher.Constraint("Vertical", 1))
sketch19.addConstraint(Sketcher.Constraint("Horizontal", 2))
sketch19.addConstraint(Sketcher.Constraint("Vertical", 3))
sketch19.addConstraint(Sketcher.Constraint("Equal", 2, 1))
sketch19.addConstraint(Sketcher.Constraint("DistanceX", 0, 1, 0, 2, 5.0))
sketch19.addConstraint(Sketcher.Constraint("DistanceX", -1, 1, 0, 2, 35.027331))
sketch19.addConstraint(Sketcher.Constraint("DistanceY", -1, 1, 0, 2, 9.902595))
pocket18 = body.newObject("PartDesign::Pocket", "Pocket017")
pocket18.Profile = sketch19
pocket18.Length = 5
pocket18.Reversed = True

# Sketch on XY plane
sketch20 = body.newObject("Sketcher::SketchObject", "Sketch019")
sketch20.AttachmentSupport = (doc.getObject("XY_Plane"), [""])
sketch20.MapMode = "FlatFace"
add_polygon(sketch20, [(20, 10), (25, 10), (25, 5), (20, 5)])  # lines 0-3
sketch20.addConstraint(Sketcher.Constraint("Horizontal", 0))
sketch20.addConstraint(Sketcher.Constraint("Vertical", 1))
sketch20.addConstraint(Sketcher.Constraint("Horizontal", 2))
sketch20.addConstraint(Sketcher.Constraint("Vertical", 3))
sketch20.addConstraint(Sketcher.Constraint("Equal", 2, 1))
sketch20.addConstraint(Sketcher.Constraint("DistanceX", 0, 1, 0, 2, 5.0))
sketch20.addConstraint(Sketcher.Constraint("DistanceX", -1, 1, 0, 2, 25.001601))
sketch20.addConstraint(Sketcher.Constraint("DistanceY", -1, 1, 0, 2, 9.907826))
pocket19 = body.newObject("PartDesign::Pocket", "Pocket018")
pocket19.Profile = sketch20
pocket19.Length = 5
pocket19.Reversed = True

# Sketch on XY plane
sketch21 = body.newObject("Sketcher::SketchObject", "Sketch020")
sketch21.AttachmentSupport = (doc.getObject("XY_Plane"), [""])
sketch21.MapMode = "FlatFace"
add_polygon(sketch21, [(10, 10), (15, 10), (15, 5), (10, 5)])  # lines 0-3
sketch21.addConstraint(Sketcher.Constraint("Horizontal", 0))
sketch21.addConstraint(Sketcher.Constraint("Vertical", 1))
sketch21.addConstraint(Sketcher.Constraint("Horizontal", 2))
sketch21.addConstraint(Sketcher.Constraint("Vertical", 3))
sketch21.addConstraint(Sketcher.Constraint("Equal", 2, 1))
sketch21.addConstraint(Sketcher.Constraint("DistanceX", 0, 1, 0, 2, 5.0))
sketch21.addConstraint(Sketcher.Constraint("DistanceX", -1, 1, 0, 2, 14.975871))
sketch21.addConstraint(Sketcher.Constraint("DistanceY", -1, 1, 0, 2, 9.913057))
pocket20 = body.newObject("PartDesign::Pocket", "Pocket019")
pocket20.Profile = sketch21
pocket20.Length = 5
pocket20.Reversed = True

# Sketch on XY plane
sketch22 = body.newObject("Sketcher::SketchObject", "Sketch021")
sketch22.AttachmentSupport = (doc.getObject("XY_Plane"), [""])
sketch22.MapMode = "FlatFace"
add_polygon(sketch22, [(50.1, 9.9), (55.1, 9.9), (55.1, 4.9), (50.1, 4.9)])  # lines 0-3
sketch22.addConstraint(Sketcher.Constraint("Horizontal", 0))
sketch22.addConstraint(Sketcher.Constraint("Vertical", 1))
sketch22.addConstraint(Sketcher.Constraint("Horizontal", 2))
sketch22.addConstraint(Sketcher.Constraint("Vertical", 3))
sketch22.addConstraint(Sketcher.Constraint("Equal", 2, 1))
sketch22.addConstraint(Sketcher.Constraint("DistanceX", 0, 1, 0, 2, 5.0))
sketch22.addConstraint(Sketcher.Constraint("DistanceX", -1, 1, 0, 2, 55.078791))
sketch22.addConstraint(Sketcher.Constraint("DistanceY", -1, 1, 0, 2, 9.892133))
pocket21 = body.newObject("PartDesign::Pocket", "Pocket020")
pocket21.Profile = sketch22
pocket21.Length = 115
pocket21.Reversed = True

doc.recompute()
